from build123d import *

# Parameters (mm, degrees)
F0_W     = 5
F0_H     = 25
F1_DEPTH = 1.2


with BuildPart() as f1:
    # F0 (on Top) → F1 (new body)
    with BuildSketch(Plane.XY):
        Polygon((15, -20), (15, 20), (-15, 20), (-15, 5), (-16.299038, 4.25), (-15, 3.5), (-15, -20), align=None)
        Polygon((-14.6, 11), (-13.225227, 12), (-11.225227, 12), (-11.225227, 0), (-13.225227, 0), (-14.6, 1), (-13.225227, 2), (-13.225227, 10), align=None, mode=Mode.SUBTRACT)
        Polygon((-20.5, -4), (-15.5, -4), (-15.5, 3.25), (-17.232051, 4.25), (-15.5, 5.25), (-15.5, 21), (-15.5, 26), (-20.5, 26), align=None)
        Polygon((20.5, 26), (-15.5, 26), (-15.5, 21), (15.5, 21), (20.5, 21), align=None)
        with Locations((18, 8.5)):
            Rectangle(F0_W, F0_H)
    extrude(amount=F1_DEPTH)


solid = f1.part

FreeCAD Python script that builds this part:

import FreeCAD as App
import Part
import Sketcher
from FreeCAD import Vector
Q = App.Units.Quantity


def add_polygon(sketch, points):
    """Adds a closed chain of lines whose ends are joined by coincident constraints."""
    first, n = sketch.GeometryCount, len(points)
    for a, b in zip(points, points[1:] + points[:1]):
        sketch.addGeometry(Part.LineSegment(App.Vector(*a, 0), App.Vector(*b, 0)), False)
    for i in range(n):
        sketch.addConstraint(Sketcher.Constraint("Coincident", first + i, 2, first + (i + 1) % n, 1))

doc = App.newDocument("Part")
params = doc.addObject("Spreadsheet::Sheet", "Params")
for row, (alias, value) in enumerate([
    ("sketch1_width", "30 mm"),
    ("sketch1_width2", "2 mm"),
    ("sketch1_width3", "5 mm"),
    ("sketch1_width4", "31 mm"),
    ("sketch1_height", "40 mm"),
    ("pad1_length", "1.2 mm"),
], start=1):
    params.set(f"A{row}", alias)
    params.set(f"B{row}", "=" + value)
    params.setAlias(f"B{row}", alias)

body = doc.addObject("PartDesign::Body", "Body")
body.AllowCompound = True

sketch1 = body.newObject("Sketcher::SketchObject", "Sketch")
sketch1.AttachmentSupport = (doc.getObject("XY_Plane"), [""])
sketch1.MapMode = "FlatFace"
add_polygon(sketch1, [(15, -20), (15, 20), (-15, 20), (-15, 5), (-16.3, 4.2), (-15, 3.5), (-15, -20)])
add_polygon(sketch1, [(-13.2, 10), (-14.6, 11), (-13.2, 12), (-11.2, 12), (-11.2, 0), (-13.2, 0), (-14.6, 1), (-13.2, 2)])
add_polygon(sketch1, [(-20.5, -4), (-15.5, -4), (-15.5, 3.2), (-17.2, 4.2), (-15.5, 5.2), (-15.5, 21), (15.5, 21), (15.5, -4), (20.5, -4), (20.5, 26), (-20.5, 26)])
sketch1.addConstraint([
    Sketcher.Constraint("Vertical", 0),
    Sketcher.Constraint("Horizontal", 1),
    Sketcher.Constraint("Vertical", 2),
    Sketcher.Constraint("Vertical", 5),
    Sketcher.Constraint("Horizontal", 6),
    Sketcher.Constraint("Horizontal", 9),
    Sketcher.Constraint("Vertical", 10),
    Sketcher.Constraint("Horizontal", 11),
    Sketcher.Constraint("Vertical", 14),
    Sketcher.Constraint("Horizontal", 15),
    Sketcher.Constraint("Vertical", 16),
    Sketcher.Constraint("Vertical", 19),
    Sketcher.Constraint("Horizontal", 20),
    Sketcher.Constraint("Vertical", 21),
    Sketcher.Constraint("Horizontal", 22),
    Sketcher.Constraint("Vertical", 23),
    Sketcher.Constraint("Horizontal", 24),
    Sketcher.Constraint("Vertical", 25),
    Sketcher.Constraint("Symmetric", 0, 2, 5, 2, -1, 1),
    Sketcher.Constraint("Symmetric", 15, 2, 21, 2, -2),
    Sketcher.Constraint("PointOnObject", 10, 2, -1),
    Sketcher.Constraint("Parallel", 7, 12),
    Sketcher.Constraint("Parallel", 8, 13),
    Sketcher.Constraint("Parallel", 4, 17),
    Sketcher.Constraint("Parallel", 3, 18),
    Sketcher.Constraint("Horizontal", 3, 2, 17, 2),
    Sketcher.Constraint("Vertical", 2, 2, 4, 2),
    Sketcher.Constraint("Vertical", 8, 2, 11, 2),
    Sketcher.Constraint("Vertical", 7, 2, 12, 2),
    Sketcher.Constraint("Vertical", 11, 2, 13, 2),
    Sketcher.Constraint("Vertical", 16, 2, 18, 2),
    Sketcher.Constraint("Equal", 15, 22),
    Sketcher.Constraint("Equal", 6, 23),
    Sketcher.Constraint("Equal", 3, 4),
    Sketcher.Constraint("Equal", 7, 8),
    Sketcher.Constraint("DistanceX", 1, 2, 1, 1, 30.0),
    Sketcher.Constraint("DistanceX", 9, 1, 9, 2, 2.0),
    Sketcher.Constraint("DistanceX", 15, 1, 15, 2, 5.0),
    Sketcher.Constraint("DistanceX", 20, 1, 20, 2, 31.0),
    Sketcher.Constraint("DistanceY", 0, 1, 0, 2, 40.0),
    Sketcher.Constraint("DistanceY", 2, 2, 2, 1, 15.0),
    Sketcher.Constraint("DistanceY", 10, 2, 10, 1, 12.0),
    Sketcher.Constraint("DistanceY", 14, 1, 14, 2, 8.0),
    Sketcher.Constraint("DistanceY", 21, 2, 21, 1, 25.0),
    Sketcher.Constraint("Angle", 3, Q("-149.999998 deg")),
    Sketcher.Constraint("Distance", 17, 2.0),
    Sketcher.Constraint("DistanceY", 5, 2, 5, 1, 23.5),
    Sketcher.Constraint("DistanceY", 15, 2, -1, 1, 4.0),
    Sketcher.Constraint("Distance", 7, 1.7),
    Sketcher.Constraint("DistanceX", 7, 2, -1, 1, 14.6),
])
sketch1.setExpression("Constraints[61]", "Params.sketch1_width")
sketch1.setExpression("Constraints[62]", "Params.sketch1_width2")
sketch1.setExpression("Constraints[63]", "Params.sketch1_width3")
sketch1.setExpression("Constraints[64]", "Params.sketch1_width4")
sketch1.setExpression("Constraints[65]", "Params.sketch1_height")
pad1 = body.newObject("PartDesign::Pad", "Pad")
pad1.Profile = sketch1
pad1.setExpression("Length", "Params.pad1_length")

doc.recompute()
